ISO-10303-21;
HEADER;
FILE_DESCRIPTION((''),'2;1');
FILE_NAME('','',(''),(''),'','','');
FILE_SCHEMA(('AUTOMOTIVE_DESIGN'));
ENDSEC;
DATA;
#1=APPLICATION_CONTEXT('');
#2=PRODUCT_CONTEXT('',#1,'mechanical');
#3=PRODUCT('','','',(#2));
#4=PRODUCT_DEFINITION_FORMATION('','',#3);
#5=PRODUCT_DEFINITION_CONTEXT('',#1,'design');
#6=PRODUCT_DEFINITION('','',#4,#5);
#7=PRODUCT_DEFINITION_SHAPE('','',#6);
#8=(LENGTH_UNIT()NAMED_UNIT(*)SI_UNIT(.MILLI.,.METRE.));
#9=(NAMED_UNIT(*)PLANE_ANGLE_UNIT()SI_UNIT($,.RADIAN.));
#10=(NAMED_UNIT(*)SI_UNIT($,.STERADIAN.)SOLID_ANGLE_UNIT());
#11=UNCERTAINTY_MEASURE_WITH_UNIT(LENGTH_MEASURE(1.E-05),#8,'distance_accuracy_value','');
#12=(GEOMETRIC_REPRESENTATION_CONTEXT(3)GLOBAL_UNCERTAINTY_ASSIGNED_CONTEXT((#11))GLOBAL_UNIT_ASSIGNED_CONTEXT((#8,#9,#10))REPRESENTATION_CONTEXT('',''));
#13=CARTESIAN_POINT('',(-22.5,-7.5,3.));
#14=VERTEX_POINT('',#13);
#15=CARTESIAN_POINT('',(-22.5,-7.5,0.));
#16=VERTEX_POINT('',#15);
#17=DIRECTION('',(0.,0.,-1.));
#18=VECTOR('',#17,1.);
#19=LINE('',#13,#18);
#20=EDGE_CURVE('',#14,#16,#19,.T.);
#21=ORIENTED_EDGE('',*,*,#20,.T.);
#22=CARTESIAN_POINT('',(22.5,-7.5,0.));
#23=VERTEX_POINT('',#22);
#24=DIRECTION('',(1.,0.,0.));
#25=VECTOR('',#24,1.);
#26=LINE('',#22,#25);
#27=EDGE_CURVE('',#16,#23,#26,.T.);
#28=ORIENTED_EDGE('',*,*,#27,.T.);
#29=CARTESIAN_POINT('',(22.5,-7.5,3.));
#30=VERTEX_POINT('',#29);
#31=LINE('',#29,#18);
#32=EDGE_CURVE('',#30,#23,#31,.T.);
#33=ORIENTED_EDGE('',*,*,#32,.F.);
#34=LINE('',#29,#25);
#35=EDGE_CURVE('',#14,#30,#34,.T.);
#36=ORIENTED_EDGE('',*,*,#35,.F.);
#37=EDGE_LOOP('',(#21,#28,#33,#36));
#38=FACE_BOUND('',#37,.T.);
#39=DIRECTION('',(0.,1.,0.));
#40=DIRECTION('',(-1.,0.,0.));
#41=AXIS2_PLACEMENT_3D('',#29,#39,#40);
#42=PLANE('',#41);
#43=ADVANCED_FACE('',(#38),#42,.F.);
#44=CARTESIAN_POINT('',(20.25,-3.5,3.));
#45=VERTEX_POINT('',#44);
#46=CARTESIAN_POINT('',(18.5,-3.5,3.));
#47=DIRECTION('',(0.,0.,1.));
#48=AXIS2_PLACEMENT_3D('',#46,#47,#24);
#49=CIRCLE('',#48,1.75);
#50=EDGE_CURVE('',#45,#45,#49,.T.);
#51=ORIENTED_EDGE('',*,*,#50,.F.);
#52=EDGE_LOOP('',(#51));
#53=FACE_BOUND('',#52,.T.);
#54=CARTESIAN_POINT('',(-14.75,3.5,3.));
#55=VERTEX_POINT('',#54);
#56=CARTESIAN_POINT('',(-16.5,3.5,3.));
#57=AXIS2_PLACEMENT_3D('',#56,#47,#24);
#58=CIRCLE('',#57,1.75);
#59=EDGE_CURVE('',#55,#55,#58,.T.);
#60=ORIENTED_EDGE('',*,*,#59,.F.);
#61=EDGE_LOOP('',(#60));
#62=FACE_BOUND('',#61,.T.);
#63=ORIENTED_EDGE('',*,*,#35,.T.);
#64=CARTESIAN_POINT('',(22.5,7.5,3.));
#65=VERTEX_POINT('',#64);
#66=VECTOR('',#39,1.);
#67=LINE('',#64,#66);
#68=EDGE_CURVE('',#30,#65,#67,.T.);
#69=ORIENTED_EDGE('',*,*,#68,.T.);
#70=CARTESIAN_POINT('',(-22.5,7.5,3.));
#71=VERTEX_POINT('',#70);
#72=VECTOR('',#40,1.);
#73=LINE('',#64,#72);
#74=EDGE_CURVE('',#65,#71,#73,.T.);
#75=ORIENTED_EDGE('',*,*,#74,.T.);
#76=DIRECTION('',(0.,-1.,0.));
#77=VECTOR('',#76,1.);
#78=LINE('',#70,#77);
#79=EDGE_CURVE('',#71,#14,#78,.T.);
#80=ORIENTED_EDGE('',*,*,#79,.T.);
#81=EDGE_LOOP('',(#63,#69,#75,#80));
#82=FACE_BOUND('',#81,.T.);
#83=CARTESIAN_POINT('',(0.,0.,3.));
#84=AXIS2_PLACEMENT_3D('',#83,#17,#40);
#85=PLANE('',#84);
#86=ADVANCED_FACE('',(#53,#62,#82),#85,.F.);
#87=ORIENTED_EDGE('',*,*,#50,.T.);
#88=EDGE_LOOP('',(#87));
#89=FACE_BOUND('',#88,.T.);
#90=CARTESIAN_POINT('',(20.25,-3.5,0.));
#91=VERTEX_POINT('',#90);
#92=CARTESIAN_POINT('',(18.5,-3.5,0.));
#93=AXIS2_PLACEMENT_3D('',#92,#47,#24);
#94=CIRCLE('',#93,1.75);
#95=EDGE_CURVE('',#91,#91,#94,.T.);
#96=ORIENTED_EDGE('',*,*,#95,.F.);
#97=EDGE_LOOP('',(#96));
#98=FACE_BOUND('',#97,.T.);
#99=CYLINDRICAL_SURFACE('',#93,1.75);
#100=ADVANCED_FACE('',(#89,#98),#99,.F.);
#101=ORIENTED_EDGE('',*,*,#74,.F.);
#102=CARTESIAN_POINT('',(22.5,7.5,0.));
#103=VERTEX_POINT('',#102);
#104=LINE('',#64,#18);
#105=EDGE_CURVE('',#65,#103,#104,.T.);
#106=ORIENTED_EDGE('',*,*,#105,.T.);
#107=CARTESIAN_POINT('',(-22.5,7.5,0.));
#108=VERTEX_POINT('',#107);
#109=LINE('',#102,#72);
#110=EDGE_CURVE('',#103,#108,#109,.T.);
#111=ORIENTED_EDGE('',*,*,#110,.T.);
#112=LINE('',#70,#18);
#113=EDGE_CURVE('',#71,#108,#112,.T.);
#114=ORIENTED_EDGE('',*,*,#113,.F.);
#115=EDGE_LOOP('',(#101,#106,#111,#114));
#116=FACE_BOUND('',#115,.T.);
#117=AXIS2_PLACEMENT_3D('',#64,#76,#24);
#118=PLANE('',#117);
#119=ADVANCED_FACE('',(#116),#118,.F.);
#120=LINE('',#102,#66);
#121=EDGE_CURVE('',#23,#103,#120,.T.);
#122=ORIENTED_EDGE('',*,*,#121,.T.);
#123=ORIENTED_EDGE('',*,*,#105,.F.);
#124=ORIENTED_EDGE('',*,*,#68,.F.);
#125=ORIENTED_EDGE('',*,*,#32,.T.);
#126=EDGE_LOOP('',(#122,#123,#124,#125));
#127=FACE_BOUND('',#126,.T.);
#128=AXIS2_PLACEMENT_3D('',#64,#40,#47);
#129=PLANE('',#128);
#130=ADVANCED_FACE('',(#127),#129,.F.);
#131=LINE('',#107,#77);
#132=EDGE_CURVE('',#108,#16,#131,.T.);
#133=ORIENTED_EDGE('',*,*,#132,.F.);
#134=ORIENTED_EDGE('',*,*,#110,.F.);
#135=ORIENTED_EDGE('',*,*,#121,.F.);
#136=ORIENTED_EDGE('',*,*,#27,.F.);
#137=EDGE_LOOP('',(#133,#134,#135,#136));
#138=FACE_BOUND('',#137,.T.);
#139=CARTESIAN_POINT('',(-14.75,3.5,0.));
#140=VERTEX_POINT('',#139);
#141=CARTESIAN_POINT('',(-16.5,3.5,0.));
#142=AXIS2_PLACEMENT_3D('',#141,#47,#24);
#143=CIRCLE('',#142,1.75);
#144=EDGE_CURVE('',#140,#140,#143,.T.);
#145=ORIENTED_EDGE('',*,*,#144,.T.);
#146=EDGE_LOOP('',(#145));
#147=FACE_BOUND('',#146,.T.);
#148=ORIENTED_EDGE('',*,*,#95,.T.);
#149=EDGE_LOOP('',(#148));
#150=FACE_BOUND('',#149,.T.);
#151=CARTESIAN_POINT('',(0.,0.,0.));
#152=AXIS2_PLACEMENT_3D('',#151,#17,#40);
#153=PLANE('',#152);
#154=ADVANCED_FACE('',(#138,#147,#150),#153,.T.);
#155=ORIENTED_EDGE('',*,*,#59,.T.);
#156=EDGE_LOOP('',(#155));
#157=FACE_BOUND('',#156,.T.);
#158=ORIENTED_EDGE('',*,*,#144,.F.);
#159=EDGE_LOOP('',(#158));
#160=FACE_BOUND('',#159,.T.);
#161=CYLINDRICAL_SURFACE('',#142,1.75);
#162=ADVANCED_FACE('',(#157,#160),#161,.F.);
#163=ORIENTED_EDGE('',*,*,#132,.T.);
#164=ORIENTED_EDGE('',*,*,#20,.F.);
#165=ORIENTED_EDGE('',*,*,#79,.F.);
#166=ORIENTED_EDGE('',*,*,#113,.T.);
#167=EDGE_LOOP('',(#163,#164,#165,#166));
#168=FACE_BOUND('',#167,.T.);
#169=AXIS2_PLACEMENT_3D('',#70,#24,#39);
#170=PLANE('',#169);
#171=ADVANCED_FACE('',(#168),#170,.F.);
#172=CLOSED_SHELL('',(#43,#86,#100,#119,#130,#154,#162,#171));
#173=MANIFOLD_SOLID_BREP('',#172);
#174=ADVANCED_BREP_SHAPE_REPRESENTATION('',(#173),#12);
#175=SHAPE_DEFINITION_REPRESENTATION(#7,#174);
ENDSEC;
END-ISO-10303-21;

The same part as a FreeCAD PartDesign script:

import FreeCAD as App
import Part
import Sketcher

V = App.Vector
Q = App.Units.Quantity

doc = App.newDocument("Part")
params = doc.addObject("Spreadsheet::Sheet", "Params")
for row, (alias, value) in enumerate([
    ("sketch1_width", "45 mm"),
    ("sketch1_height", "15 mm"),
    ("pad1_length", "3 mm"),
    ("sketch2_diameter", "3.5 mm"),
    ("pocket1_length", "3 mm"),
], start=1):
    params.set(f"A{row}", alias)
    params.set(f"B{row}", "=" + value)
    params.setAlias(f"B{row}", alias)

body = doc.addObject("PartDesign::Body", "Body")

# Sketch on XY plane
sketch1 = body.newObject("Sketcher::SketchObject", "Sketch")
sketch1.AttachmentSupport = (doc.getObject("XY_Plane"), [""])
sketch1.MapMode = "FlatFace"
sketch1.addGeometry([
    Part.LineSegment(V(-22, 8, 0), V(-22, -8, 0)),
    Part.LineSegment(V(-22, -8, 0), V(22, -8, 0)),
    Part.LineSegment(V(22, -8, 0), V(22, 8, 0)),
    Part.LineSegment(V(22, 8, 0), V(-22, 8, 0)),
], False)
sketch1.addConstraint([
    Sketcher.Constraint("Coincident", 0, 2, 1, 1),
    Sketcher.Constraint("Coincident", 1, 2, 2, 1),
    Sketcher.Constraint("Coincident", 2, 2, 3, 1),
    Sketcher.Constraint("Coincident", 3, 2, 0, 1),
    Sketcher.Constraint("Vertical", 0),
    Sketcher.Constraint("Horizontal", 1),
    Sketcher.Constraint("Vertical", 2),
    Sketcher.Constraint("Horizontal", 3),
    Sketcher.Constraint("Symmetric", 0, 2, 2, 2, -1, 1),
    Sketcher.Constraint("DistanceX", 1, 1, 1, 2, Q("45 mm")),
    Sketcher.Constraint("DistanceY", 0, 2, 0, 1, Q("15 mm")),
])
sketch1.setExpression("Constraints[9]", "Params.sketch1_width")
sketch1.setExpression("Constraints[10]", "Params.sketch1_height")
pad1 = body.newObject("PartDesign::Pad", "Pad")
pad1.Profile = sketch1
pad1.setExpression("Length", "Params.pad1_length")

# Sketch on XY plane
sketch2 = body.newObject("Sketcher::SketchObject", "Sketch001")
sketch2.AttachmentSupport = (doc.getObject("XY_Plane"), [""])
sketch2.MapMode = "FlatFace"
sketch2.AttachmentOffset = App.Placement(V(0, 0, 3), App.Rotation())
sketch2.addGeometry([
    Part.Circle(V(18.5, -3.5, 0), V(0, 0, 1), 1.8),
    Part.Circle(V(-16.5, 3.5, 0), V(0, 0, 1), 1.8),
], False)
sketch2.addConstraint([
    Sketcher.Constraint("Equal", 0, 1),
    Sketcher.Constraint("Diameter", 0, Q("3.5 mm")),
    Sketcher.Constraint("DistanceX", 1, 3, 0, 3, Q("35 mm")),
    Sketcher.Constraint("DistanceY", 0, 3, 1, 3, Q("7 mm")),
    Sketcher.Constraint("DistanceX", -1, 1, 0, 3, Q("18.5 mm")),
    Sketcher.Constraint("DistanceY", 0, 3, -1, 1, Q("3.5 mm")),
])
sketch2.setExpression("Constraints[1]", "Params.sketch2_diameter")
pocket1 = body.newObject("PartDesign::Pocket", "Pocket")
pocket1.Profile = sketch2
pocket1.setExpression("Length", "Params.pocket1_length")

doc.recompute()
